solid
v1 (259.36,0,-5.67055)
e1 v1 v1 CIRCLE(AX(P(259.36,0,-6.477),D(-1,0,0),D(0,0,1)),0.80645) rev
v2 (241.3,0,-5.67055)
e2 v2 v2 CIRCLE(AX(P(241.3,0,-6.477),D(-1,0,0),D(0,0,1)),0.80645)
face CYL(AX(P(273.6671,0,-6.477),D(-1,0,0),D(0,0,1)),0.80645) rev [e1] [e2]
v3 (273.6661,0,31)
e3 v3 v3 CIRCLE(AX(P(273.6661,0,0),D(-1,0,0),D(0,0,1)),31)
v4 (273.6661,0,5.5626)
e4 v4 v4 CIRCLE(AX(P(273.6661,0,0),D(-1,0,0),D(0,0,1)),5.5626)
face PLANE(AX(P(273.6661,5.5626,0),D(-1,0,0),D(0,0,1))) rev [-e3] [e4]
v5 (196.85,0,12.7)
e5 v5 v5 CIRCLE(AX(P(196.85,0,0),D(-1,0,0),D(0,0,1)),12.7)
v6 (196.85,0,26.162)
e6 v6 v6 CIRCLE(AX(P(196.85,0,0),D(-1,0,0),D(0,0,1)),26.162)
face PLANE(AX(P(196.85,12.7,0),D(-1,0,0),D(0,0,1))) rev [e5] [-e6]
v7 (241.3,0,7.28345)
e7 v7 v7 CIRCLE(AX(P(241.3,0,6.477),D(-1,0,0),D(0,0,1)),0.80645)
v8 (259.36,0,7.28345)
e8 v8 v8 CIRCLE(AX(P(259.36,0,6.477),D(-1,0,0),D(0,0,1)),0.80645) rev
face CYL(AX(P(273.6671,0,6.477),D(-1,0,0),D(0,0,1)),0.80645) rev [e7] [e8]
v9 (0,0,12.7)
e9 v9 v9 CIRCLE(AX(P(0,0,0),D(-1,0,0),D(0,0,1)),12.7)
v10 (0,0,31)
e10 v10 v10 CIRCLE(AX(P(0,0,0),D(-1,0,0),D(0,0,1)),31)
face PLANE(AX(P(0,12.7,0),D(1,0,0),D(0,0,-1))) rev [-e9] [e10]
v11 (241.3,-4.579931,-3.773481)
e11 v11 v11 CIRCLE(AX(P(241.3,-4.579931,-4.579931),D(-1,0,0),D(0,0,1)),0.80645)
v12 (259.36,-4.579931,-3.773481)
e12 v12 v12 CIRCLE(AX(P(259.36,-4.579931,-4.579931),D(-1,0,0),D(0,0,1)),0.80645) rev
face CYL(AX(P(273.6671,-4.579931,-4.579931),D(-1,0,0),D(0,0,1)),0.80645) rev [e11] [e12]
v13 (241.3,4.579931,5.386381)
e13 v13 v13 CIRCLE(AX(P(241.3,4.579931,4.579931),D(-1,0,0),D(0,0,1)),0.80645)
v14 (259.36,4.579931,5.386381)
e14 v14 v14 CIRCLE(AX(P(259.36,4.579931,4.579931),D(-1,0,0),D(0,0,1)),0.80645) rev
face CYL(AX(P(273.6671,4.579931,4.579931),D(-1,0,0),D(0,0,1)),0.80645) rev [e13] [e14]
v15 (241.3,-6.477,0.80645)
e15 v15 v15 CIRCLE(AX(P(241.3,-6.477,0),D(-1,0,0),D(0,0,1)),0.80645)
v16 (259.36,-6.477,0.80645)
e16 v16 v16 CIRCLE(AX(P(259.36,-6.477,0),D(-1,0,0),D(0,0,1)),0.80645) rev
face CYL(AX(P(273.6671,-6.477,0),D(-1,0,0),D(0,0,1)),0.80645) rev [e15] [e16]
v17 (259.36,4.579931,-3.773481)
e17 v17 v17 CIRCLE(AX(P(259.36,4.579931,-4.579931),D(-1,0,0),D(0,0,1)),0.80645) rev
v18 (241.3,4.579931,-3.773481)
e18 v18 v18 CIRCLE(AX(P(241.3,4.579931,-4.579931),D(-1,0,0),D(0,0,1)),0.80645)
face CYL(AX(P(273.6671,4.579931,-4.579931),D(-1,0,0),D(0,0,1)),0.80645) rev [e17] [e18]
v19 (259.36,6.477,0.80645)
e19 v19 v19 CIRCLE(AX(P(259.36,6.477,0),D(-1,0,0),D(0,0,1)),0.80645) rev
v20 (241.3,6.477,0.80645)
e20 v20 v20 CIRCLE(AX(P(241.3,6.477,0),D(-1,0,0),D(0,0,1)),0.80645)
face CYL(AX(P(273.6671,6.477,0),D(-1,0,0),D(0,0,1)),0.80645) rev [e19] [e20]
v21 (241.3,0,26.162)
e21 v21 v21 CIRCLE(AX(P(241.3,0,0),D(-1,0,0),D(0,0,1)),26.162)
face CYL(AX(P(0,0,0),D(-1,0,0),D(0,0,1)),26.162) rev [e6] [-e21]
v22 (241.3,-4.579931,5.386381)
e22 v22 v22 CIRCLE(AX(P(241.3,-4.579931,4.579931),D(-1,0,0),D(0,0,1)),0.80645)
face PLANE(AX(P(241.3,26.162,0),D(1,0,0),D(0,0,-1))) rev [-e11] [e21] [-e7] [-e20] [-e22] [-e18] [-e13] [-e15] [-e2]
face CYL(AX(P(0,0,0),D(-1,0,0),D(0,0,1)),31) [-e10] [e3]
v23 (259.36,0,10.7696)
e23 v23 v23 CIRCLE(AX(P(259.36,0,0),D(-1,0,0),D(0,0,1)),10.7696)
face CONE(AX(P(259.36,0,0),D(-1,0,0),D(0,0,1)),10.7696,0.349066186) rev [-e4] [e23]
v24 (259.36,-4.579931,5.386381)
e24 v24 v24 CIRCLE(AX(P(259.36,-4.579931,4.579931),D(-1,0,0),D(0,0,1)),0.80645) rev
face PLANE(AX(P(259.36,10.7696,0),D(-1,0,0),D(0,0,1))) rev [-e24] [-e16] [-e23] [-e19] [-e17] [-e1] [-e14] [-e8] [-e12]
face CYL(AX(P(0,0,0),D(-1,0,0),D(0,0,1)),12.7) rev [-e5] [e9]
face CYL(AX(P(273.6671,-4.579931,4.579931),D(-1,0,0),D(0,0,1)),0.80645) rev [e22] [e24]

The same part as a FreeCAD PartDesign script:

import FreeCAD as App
import Part
import Sketcher
Q = App.Units.Quantity


def add_polygon(sketch, points):
    """Adds a closed chain of lines whose ends are joined by coincident constraints."""
    first, n = sketch.GeometryCount, len(points)
    for a, b in zip(points, points[1:] + points[:1]):
        sketch.addGeometry(Part.LineSegment(App.Vector(*a, 0), App.Vector(*b, 0)), False)
    for i in range(n):
        sketch.addConstraint(Sketcher.Constraint("Coincident", first + i, 2, first + (i + 1) % n, 1))

doc = App.newDocument("Part")
body = doc.addObject("PartDesign::Body", "Body")

sketch1 = body.newObject("Sketcher::SketchObject", "Sketch")
sketch1.AttachmentSupport = (doc.getObject("XY_Plane"), [""])
sketch1.MapMode = "FlatFace"
add_polygon(sketch1, [(0, 13), (197, 13), (197, 26), (241, 26), (241, 0), (259, 0), (259, 11), (274, 6), (274, 31), (0, 31)])
sketch1.addConstraint([
    Sketcher.Constraint("Horizontal", 0),
    Sketcher.Constraint("Vertical", 1),
    Sketcher.Constraint("Horizontal", 2),
    Sketcher.Constraint("Vertical", 3),
    Sketcher.Constraint("Horizontal", 4),
    Sketcher.Constraint("Vertical", 5),
    Sketcher.Constraint("Vertical", 7),
    Sketcher.Constraint("Horizontal", 8),
    Sketcher.Constraint("Vertical", 9),
    Sketcher.Constraint("PointOnObject", 3, 2, -1),
    Sketcher.Constraint("PointOnObject", 8, 2, -2),
    Sketcher.Constraint("Angle", 6, Q("-20.000019 deg")),
    Sketcher.Constraint("DistanceX", 0, 1, 0, 2, Q("7.75 in")),
    Sketcher.Constraint("DistanceX", 2, 1, 2, 2, Q("1.75 in")),
    Sketcher.Constraint("DistanceY", 1, 1, 1, 2, Q("0.53 in")),
    Sketcher.Constraint("DistanceY", 3, 2, 3, 1, Q("1.03 in")),
    Sketcher.Constraint("DistanceY", 5, 1, 5, 2, Q("0.424 in")),
    Sketcher.Constraint("DistanceY", -1, 1, 6, 2, Q("0.219 in")),
    Sketcher.Constraint("DistanceX", 4, 1, 4, 2, 18.06),
    Sketcher.Constraint("DistanceY", 7, 1, 7, 2, 25.4374),
])
revolution = body.newObject("PartDesign::Revolution", "Revolution")
revolution.Profile = sketch1
revolution.ReferenceAxis = (sketch1, ["H_Axis"])
revolution.Angle = 360

sketch2 = body.newObject("Sketcher::SketchObject", "Sketch001")
sketch2.AttachmentSupport = (doc.getObject("YZ_Plane"), [""])
sketch2.MapMode = "FlatFace"
sketch2.AttachmentOffset = App.Placement(App.Vector(0, 0, 9.5 * 25.4), App.Rotation())
sketch2.addGeometry(Part.Circle(App.Vector(6.5, 0, 0), App.Vector(0, 0, 1), 0.8), False)
sketch2.addConstraint([
    Sketcher.Constraint("PointOnObject", 0, 3, -1),
    Sketcher.Constraint("Diameter", 0, Q("0.0635 in")),
    Sketcher.Constraint("DistanceX", -1, 1, 0, 3, Q("0.255 in")),
])
pocket1 = body.newObject("PartDesign::Pocket", "Pocket")
pocket1.Profile = sketch2
pocket1.Type = "UpToFirst"
pocket1.Reversed = True

sketch3 = body.newObject("Sketcher::SketchObject", "Sketch002")
sketch3.AttachmentSupport = (doc.getObject("YZ_Plane"), [""])
sketch3.MapMode = "FlatFace"
sketch3.AttachmentOffset = App.Placement(App.Vector(0, 0, 9.5 * 25.4), App.Rotation())
sketch3.addGeometry(Part.Circle(App.Vector(4.6, 4.6, 0), App.Vector(0, 0, 1), 0.8), False)
sketch3.addConstraint([
    Sketcher.Constraint("Diameter", 0, Q("0.0635 in")),
    Sketcher.Constraint("DistanceX", -1, 1, 0, 3, 4.579931),
    Sketcher.Constraint("DistanceY", -1, 1, 0, 3, 4.579931),
])
pocket2 = body.newObject("PartDesign::Pocket", "Pocket001")
pocket2.Profile = sketch3
pocket2.Type = "UpToFirst"
pocket2.Reversed = True

sketch4 = body.newObject("Sketcher::SketchObject", "Sketch003")
sketch4.AttachmentSupport = (doc.getObject("YZ_Plane"), [""])
sketch4.MapMode = "FlatFace"
sketch4.AttachmentOffset = App.Placement(App.Vector(0, 0, 9.5 * 25.4), App.Rotation())
sketch4.addGeometry(Part.Circle(App.Vector(0, 6.5, 0), App.Vector(0, 0, 1), 0.8), False)
sketch4.addConstraint([
    Sketcher.Constraint("PointOnObject", 0, 3, -2),
    Sketcher.Constraint("Diameter", 0, Q("0.0635 in")),
    Sketcher.Constraint("DistanceY", -1, 1, 0, 3, Q("0.255 in")),
])
pocket3 = body.newObject("PartDesign::Pocket", "Pocket002")
pocket3.Profile = sketch4
pocket3.Type = "UpToFirst"
pocket3.Reversed = True

sketch5 = body.newObject("Sketcher::SketchObject", "Sketch004")
sketch5.AttachmentSupport = (doc.getObject("YZ_Plane"), [""])
sketch5.MapMode = "FlatFace"
sketch5.AttachmentOffset = App.Placement(App.Vector(0, 0, 9.5 * 25.4), App.Rotation())
sketch5.addGeometry(Part.Circle(App.Vector(-4.6, 4.6, 0), App.Vector(0, 0, 1), 0.8), False)
sketch5.addConstraint([
    Sketcher.Constraint("Diameter", 0, Q("0.0635 in")),
    Sketcher.Constraint("DistanceX", 0, 3, -1, 1, 4.579931),
    Sketcher.Constraint("DistanceY", -1, 1, 0, 3, 4.579931),
])
pocket4 = body.newObject("PartDesign::Pocket", "Pocket003")
pocket4.Profile = sketch5
pocket4.Type = "UpToFirst"
pocket4.Reversed = True

sketch6 = body.newObject("Sketcher::SketchObject", "Sketch005")
sketch6.AttachmentSupport = (doc.getObject("YZ_Plane"), [""])
sketch6.MapMode = "FlatFace"
sketch6.AttachmentOffset = App.Placement(App.Vector(0, 0, 9.5 * 25.4), App.Rotation())
sketch6.addGeometry(Part.Circle(App.Vector(-6.5, 0, 0), App.Vector(0, 0, 1), 0.8), False)
sketch6.addConstraint([
    Sketcher.Constraint("PointOnObject", 0, 3, -1),
    Sketcher.Constraint("Diameter", 0, Q("0.0635 in")),
    Sketcher.Constraint("DistanceX", 0, 3, -1, 1, Q("0.255 in")),
])
pocket5 = body.newObject("PartDesign::Pocket", "Pocket004")
pocket5.Profile = sketch6
pocket5.Type = "UpToFirst"
pocket5.Reversed = True

sketch7 = body.newObject("Sketcher::SketchObject", "Sketch006")
sketch7.AttachmentSupport = (doc.getObject("YZ_Plane"), [""])
sketch7.MapMode = "FlatFace"
sketch7.AttachmentOffset = App.Placement(App.Vector(0, 0, 9.5 * 25.4), App.Rotation())
sketch7.addGeometry(Part.Circle(App.Vector(-4.6, -4.6, 0), App.Vector(0, 0, 1), 0.8), False)
sketch7.addConstraint([
    Sketcher.Constraint("Diameter", 0, Q("0.0635 in")),
    Sketcher.Constraint("DistanceX", 0, 3, -1, 1, 4.579931),
    Sketcher.Constraint("DistanceY", 0, 3, -1, 1, 4.579931),
])
pocket6 = body.newObject("PartDesign::Pocket", "Pocket005")
pocket6.Profile = sketch7
pocket6.Type = "UpToFirst"
pocket6.Reversed = True

sketch8 = body.newObject("Sketcher::SketchObject", "Sketch007")
sketch8.AttachmentSupport = (doc.getObject("YZ_Plane"), [""])
sketch8.MapMode = "FlatFace"
sketch8.AttachmentOffset = App.Placement(App.Vector(0, 0, 9.5 * 25.4), App.Rotation())
sketch8.addGeometry(Part.Circle(App.Vector(0, -6.5, 0), App.Vector(0, 0, 1), 0.8), False)
sketch8.addConstraint([
    Sketcher.Constraint("PointOnObject", 0, 3, -2),
    Sketcher.Constraint("Diameter", 0, Q("0.0635 in")),
    Sketcher.Constraint("DistanceY", 0, 3, -1, 1, Q("0.255 in")),
])
pocket7 = body.newObject("PartDesign::Pocket", "Pocket006")
pocket7.Profile = sketch8
pocket7.Type = "UpToFirst"
pocket7.Reversed = True

sketch9 = body.newObject("Sketcher::SketchObject", "Sketch008")
sketch9.AttachmentSupport = (doc.getObject("YZ_Plane"), [""])
sketch9.MapMode = "FlatFace"
sketch9.AttachmentOffset = App.Placement(App.Vector(0, 0, 9.5 * 25.4), App.Rotation())
sketch9.addGeometry(Part.Circle(App.Vector(4.6, -4.6, 0), App.Vector(0, 0, 1), 0.8), False)
sketch9.addConstraint([
    Sketcher.Constraint("Diameter", 0, Q("0.0635 in")),
    Sketcher.Constraint("DistanceX", -1, 1, 0, 3, 4.579931),
    Sketcher.Constraint("DistanceY", 0, 3, -1, 1, 4.579931),
])
pocket8 = body.newObject("PartDesign::Pocket", "Pocket007")
pocket8.Profile = sketch9
pocket8.Type = "UpToFirst"
pocket8.Reversed = True

doc.recompute()
